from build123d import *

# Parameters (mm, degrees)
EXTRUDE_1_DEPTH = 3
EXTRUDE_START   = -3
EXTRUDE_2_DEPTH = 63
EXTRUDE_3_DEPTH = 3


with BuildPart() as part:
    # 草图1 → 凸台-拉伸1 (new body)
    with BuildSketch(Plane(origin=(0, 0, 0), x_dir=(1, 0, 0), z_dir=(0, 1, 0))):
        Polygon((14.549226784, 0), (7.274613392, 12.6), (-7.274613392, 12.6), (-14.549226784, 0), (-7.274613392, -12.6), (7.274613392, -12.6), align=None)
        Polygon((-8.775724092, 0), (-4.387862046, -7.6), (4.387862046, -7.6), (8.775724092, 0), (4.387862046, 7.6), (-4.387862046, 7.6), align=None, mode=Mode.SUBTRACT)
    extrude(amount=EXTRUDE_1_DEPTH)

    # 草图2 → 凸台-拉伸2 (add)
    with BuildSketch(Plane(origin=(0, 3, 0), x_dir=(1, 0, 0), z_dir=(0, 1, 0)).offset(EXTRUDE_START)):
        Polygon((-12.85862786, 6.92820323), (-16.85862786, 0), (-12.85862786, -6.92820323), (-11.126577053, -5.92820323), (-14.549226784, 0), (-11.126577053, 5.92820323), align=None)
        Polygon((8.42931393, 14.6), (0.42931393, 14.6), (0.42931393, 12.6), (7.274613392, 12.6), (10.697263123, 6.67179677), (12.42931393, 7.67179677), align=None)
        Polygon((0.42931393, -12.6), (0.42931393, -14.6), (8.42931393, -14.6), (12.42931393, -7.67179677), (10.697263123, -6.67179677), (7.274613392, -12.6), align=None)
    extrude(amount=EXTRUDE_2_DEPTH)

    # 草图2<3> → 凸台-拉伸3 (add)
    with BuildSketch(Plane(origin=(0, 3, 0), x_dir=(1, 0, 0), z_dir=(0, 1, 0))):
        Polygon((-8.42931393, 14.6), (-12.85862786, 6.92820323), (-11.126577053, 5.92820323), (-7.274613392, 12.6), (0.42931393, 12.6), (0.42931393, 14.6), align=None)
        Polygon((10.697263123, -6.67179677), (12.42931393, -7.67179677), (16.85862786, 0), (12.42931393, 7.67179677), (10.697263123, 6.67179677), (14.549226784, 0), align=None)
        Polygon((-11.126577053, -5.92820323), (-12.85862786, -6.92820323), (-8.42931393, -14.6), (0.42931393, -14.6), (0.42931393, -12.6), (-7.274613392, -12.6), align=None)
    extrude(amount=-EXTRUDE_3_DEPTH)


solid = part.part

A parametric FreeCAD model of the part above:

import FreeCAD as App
import Part
import Sketcher
from FreeCAD import Vector
Q = App.Units.Quantity


def add_polygon(sketch, points):
    """Adds a closed chain of lines whose ends are joined by coincident constraints."""
    first, n = sketch.GeometryCount, len(points)
    for a, b in zip(points, points[1:] + points[:1]):
        sketch.addGeometry(Part.LineSegment(App.Vector(*a, 0), App.Vector(*b, 0)), False)
    for i in range(n):
        sketch.addConstraint(Sketcher.Constraint("Coincident", first + i, 2, first + (i + 1) % n, 1))

doc = App.newDocument("Part")
params = doc.addObject("Spreadsheet::Sheet", "Params")
for row, (alias, value) in enumerate([
    ("pad1_length", "3 mm"),
    ("sketch2_width", "8 mm"),
    ("sketch2_height", "2 mm"),
    ("sketch2_length", "8 mm"),
    ("pad2_length", "63 mm"),
    ("sketch3_height", "2 mm"),
    ("pad3_length", "3 mm"),
], start=1):
    params.set(f"A{row}", alias)
    params.set(f"B{row}", "=" + value)
    params.setAlias(f"B{row}", alias)

body = doc.addObject("PartDesign::Body", "Body")

# Sketch on XZ plane
sketch1 = doc.addObject("Sketcher::SketchObject", "Sketch")
body.addObject(sketch1)
sketch1.AttachmentSupport = (doc.XZ_Plane, [""])
sketch1.MapMode = "FlatFace"
add_polygon(sketch1, [(14.549227, 0), (7.274613, -12.6), (-7.274613, -12.6), (-14.549227, 0), (-7.274613, 12.6), (7.274613, 12.6)])  # lines 0-5
add_polygon(sketch1, [(-4.387862, 7.6), (-8.775724, 0), (-4.387862, -7.6), (4.387862, -7.6), (8.775724, 0), (4.387862, 7.6)])  # lines 6-11
sketch1.addConstraint([
    Sketcher.Constraint("Horizontal", 1),
    Sketcher.Constraint("Horizontal", 4),
    Sketcher.Constraint("Horizontal", 8),
    Sketcher.Constraint("Horizontal", 11),
    Sketcher.Constraint("Symmetric", 0, 2, 3, 2, -1, 1),
    Sketcher.Constraint("Symmetric", 2, 2, 5, 2, -1, 1),
    Sketcher.Constraint("Symmetric", 6, 2, 9, 2, -1, 1),
    Sketcher.Constraint("Symmetric", 7, 2, 10, 2, -1, 1),
    Sketcher.Constraint("PointOnObject", 2, 2, -1),
    Sketcher.Constraint("PointOnObject", 6, 2, -1),
    Sketcher.Constraint("Parallel", 2, 5),
    Sketcher.Constraint("Parallel", 3, 6),
    Sketcher.Constraint("Parallel", 5, 7),
    Sketcher.Constraint("Parallel", 6, 9),
    Sketcher.Constraint("Vertical", 1, 2, 3, 2),
    Sketcher.Constraint("Angle", 0, Q("-120 deg")),
    Sketcher.Constraint("DistanceY", 1, 2, 7, 2, 5.0),
    Sketcher.Constraint("DistanceY", 0, 2, -1, 1, 12.6),
    Sketcher.Constraint("DistanceX", 1, 2, 1, 1, 14.549227),
    Sketcher.Constraint("DistanceX", 8, 1, 8, 2, 8.775724),
])
pad1 = doc.addObject("PartDesign::Pad", "Pad")
body.addObject(pad1)
pad1.Profile = sketch1
pad1.setExpression("Length", "Params.pad1_length")
pad1.Reversed = True

# Sketch on XZ plane
sketch2 = doc.addObject("Sketcher::SketchObject", "Sketch001")
body.addObject(sketch2)
sketch2.AttachmentSupport = (doc.XZ_Plane, [""])
sketch2.MapMode = "FlatFace"
add_polygon(sketch2, [(-12.858628, -6.928203), (-16.858628, 0), (-12.858628, 6.928203), (-11.126577, 5.928203), (-14.549227, 0), (-11.126577, -5.928203)])  # lines 0-5
add_polygon(sketch2, [(8.429314, -14.6), (0.429314, -14.6), (0.429314, -12.6), (7.274613, -12.6), (10.697263, -6.671797), (12.429314, -7.671797)])  # lines 6-11
add_polygon(sketch2, [(0.429314, 12.6), (0.429314, 14.6), (8.429314, 14.6), (12.429314, 7.671797), (10.697263, 6.671797), (7.274613, 12.6)])  # lines 12-17
sketch2.addConstraint([
    Sketcher.Constraint("Horizontal", 6),
    Sketcher.Constraint("Vertical", 7),
    Sketcher.Constraint("Horizontal", 8),
    Sketcher.Constraint("Vertical", 12),
    Sketcher.Constraint("Horizontal", 13),
    Sketcher.Constraint("Horizontal", 17),
    Sketcher.Constraint("Symmetric", 2, 2, 4, 2, -1),
    Sketcher.Constraint("Symmetric", 1, 2, 5, 2, -1),
    Sketcher.Constraint("Symmetric", 6, 2, 12, 2, -1),
    Sketcher.Constraint("Symmetric", 10, 2, 14, 2, -1),
    Sketcher.Constraint("Symmetric", 9, 2, 15, 2, -1),
    Sketcher.Constraint("Symmetric", 8, 2, 16, 2, -1),
    Sketcher.Constraint("PointOnObject", 0, 2, -1),
    Sketcher.Constraint("PointOnObject", 3, 2, -1),
    Sketcher.Constraint("Perpendicular", 1, 2),
    Sketcher.Constraint("Perpendicular", 2, 3),
    Sketcher.Constraint("Parallel", 3, 9),
    Sketcher.Constraint("Perpendicular", 9, 10),
    Sketcher.Constraint("Perpendicular", 10, 11),
    Sketcher.Constraint("Perpendicular", 5, 14),
    Sketcher.Constraint("Equal", 4, 9),
    Sketcher.Constraint("Equal", 5, 10),
    Sketcher.Constraint("Equal", 1, 11),
    Sketcher.Constraint("DistanceX", 6, 2, 6, 1, 8.0),
    Sketcher.Constraint("DistanceY", 7, 1, 7, 2, 2.0),
    Sketcher.Constraint("Angle", 0, Q("120 deg")),
    Sketcher.Constraint("Distance", 0, 8.0),
    Sketcher.Constraint("DistanceY", 6, 2, -1, 1, 14.6),
    Sketcher.Constraint("DistanceX", 4, 2, 6, 2, 11.555891),
    Sketcher.Constraint("DistanceX", 0, 2, -1, 1, 16.858628),
])
sketch2.setExpression("Constraints[41]", "Params.sketch2_width")
sketch2.setExpression("Constraints[42]", "Params.sketch2_height")
sketch2.setExpression("Constraints[44]", "Params.sketch2_length")
pad2 = doc.addObject("PartDesign::Pad", "Pad001")
body.addObject(pad2)
pad2.Profile = sketch2
pad2.setExpression("Length", "Params.pad2_length")
pad2.Reversed = True

# Sketch on XZ plane
sketch3 = doc.addObject("Sketcher::SketchObject", "Sketch002")
body.addObject(sketch3)
sketch3.AttachmentSupport = (doc.XZ_Plane, [""])
sketch3.MapMode = "FlatFace"
sketch3.AttachmentOffset = App.Placement(Vector(0, 0, -3), App.Rotation())
add_polygon(sketch3, [(-8.429314, -14.6), (-12.858628, -6.928203), (-11.126577, -5.928203), (-7.274613, -12.6), (0.429314, -12.6), (0.429314, -14.6)])  # lines 0-5
add_polygon(sketch3, [(10.697263, 6.671797), (12.429314, 7.671797), (16.858628, 0), (12.429314, -7.671797), (10.697263, -6.671797), (14.549227, 0)])  # lines 6-11
add_polygon(sketch3, [(-11.126577, 5.928203), (-12.858628, 6.928203), (-8.429314, 14.6), (0.429314, 14.6), (0.429314, 12.6), (-7.274613, 12.6)])  # lines 12-17
sketch3.addConstraint([
    Sketcher.Constraint("Horizontal", 3),
    Sketcher.Constraint("Vertical", 4),
    Sketcher.Constraint("Horizontal", 5),
    Sketcher.Constraint("Horizontal", 14),
    Sketcher.Constraint("Vertical", 15),
    Sketcher.Constraint("Horizontal", 16),
    Sketcher.Constraint("Symmetric", 6, 2, 8, 2, -1),
    Sketcher.Constraint("Symmetric", 9, 2, 11, 2, -1),
    Sketcher.Constraint("Symmetric", 0, 2, 12, 2, -1),
    Sketcher.Constraint("Symmetric", 5, 2, 13, 2, -1),
    Sketcher.Constraint("Symmetric", 3, 2, 15, 2, -1),
    Sketcher.Constraint("Symmetric", 1, 2, 17, 2, -1),
    Sketcher.Constraint("PointOnObject", 7, 2, -1),
    Sketcher.Constraint("PointOnObject", 10, 2, -1),
    Sketcher.Constraint("Perpendicular", 0, 1),
    Sketcher.Constraint("Perpendicular", 1, 2),
    Sketcher.Constraint("Perpendicular", 2, 6),
    Sketcher.Constraint("Perpendicular", 6, 7),
    Sketcher.Constraint("Perpendicular", 9, 10),
    Sketcher.Constraint("Parallel", 13, 17),
    Sketcher.Constraint("Equal", 1, 6),
    Sketcher.Constraint("Equal", 0, 7),
    Sketcher.Constraint("Equal", 2, 10),
    Sketcher.Constraint("DistanceY", 4, 2, 4, 1, 2.0),
    Sketcher.Constraint("Angle", 0, Q("120 deg")),
    Sketcher.Constraint("DistanceX", 3, 2, 6, 2, 12.0),
    Sketcher.Constraint("DistanceY", 2, 2, -1, 1, 12.6),
    Sketcher.Constraint("DistanceX", 3, 1, 3, 2, 7.703927),
    Sketcher.Constraint("DistanceX", 1, 2, 3, 2, 11.555891),
    Sketcher.Constraint("DistanceX", 0, 2, -1, 1, 12.858628),
])
sketch3.setExpression("Constraints[41]", "Params.sketch3_height")
pad3 = doc.addObject("PartDesign::Pad", "Pad002")
body.addObject(pad3)
pad3.Profile = sketch3
pad3.setExpression("Length", "Params.pad3_length")

doc.recompute()
